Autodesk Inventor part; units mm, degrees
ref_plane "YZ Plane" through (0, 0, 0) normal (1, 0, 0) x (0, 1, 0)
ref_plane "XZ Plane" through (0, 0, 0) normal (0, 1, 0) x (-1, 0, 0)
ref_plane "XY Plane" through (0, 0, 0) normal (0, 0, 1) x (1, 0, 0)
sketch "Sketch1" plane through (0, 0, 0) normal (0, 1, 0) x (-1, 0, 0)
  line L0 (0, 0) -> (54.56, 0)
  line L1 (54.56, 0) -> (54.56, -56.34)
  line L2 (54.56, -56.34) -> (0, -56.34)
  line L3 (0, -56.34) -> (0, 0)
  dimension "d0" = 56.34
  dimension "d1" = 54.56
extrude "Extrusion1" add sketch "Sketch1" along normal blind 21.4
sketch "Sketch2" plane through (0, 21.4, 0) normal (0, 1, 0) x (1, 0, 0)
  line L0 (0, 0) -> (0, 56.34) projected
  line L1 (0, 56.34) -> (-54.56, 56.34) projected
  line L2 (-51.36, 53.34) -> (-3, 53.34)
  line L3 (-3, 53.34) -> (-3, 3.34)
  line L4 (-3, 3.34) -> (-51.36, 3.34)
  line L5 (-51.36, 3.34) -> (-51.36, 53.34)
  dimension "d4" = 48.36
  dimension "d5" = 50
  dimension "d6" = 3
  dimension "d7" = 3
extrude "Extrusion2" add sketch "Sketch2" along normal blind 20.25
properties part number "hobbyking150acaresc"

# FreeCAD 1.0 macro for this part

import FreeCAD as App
import Part
import Sketcher

V = App.Vector


def add_polygon(sketch, points):
    """Adds a closed chain of lines whose ends are joined by coincident constraints."""
    first, n = sketch.GeometryCount, len(points)
    for a, b in zip(points, points[1:] + points[:1]):
        sketch.addGeometry(Part.LineSegment(App.Vector(*a, 0), App.Vector(*b, 0)), False)
    for i in range(n):
        sketch.addConstraint(Sketcher.Constraint("Coincident", first + i, 2, first + (i + 1) % n, 1))

doc = App.newDocument("Part")
params = doc.addObject("Spreadsheet::Sheet", "Params")
for row, (alias, value) in enumerate([
    ("sketch1_width", "54.56 mm"),
    ("sketch1_height", "56.34 mm"),
    ("pad1_length", "21.4 mm"),
    ("sketch2_height", "50 mm"),
    ("sketch2_width", "48.36 mm"),
    ("pad2_length", "20.25 mm"),
], start=1):
    params.set(f"A{row}", alias)
    params.set(f"B{row}", "=" + value)
    params.setAlias(f"B{row}", alias)

body = doc.addObject("PartDesign::Body", "Body")

# Sketch on XZ plane
sketch1 = doc.addObject("Sketcher::SketchObject", "Sketch")
body.addObject(sketch1)
sketch1.AttachmentSupport = (doc.XZ_Plane, [""])
sketch1.MapMode = "FlatFace"
add_polygon(sketch1, [(-55, 0), (0, 0), (0, -56), (-55, -56)])  # lines 0-3
sketch1.addConstraint(Sketcher.Constraint("Horizontal", 0))
sketch1.addConstraint(Sketcher.Constraint("Vertical", 1))
sketch1.addConstraint(Sketcher.Constraint("Horizontal", 2))
sketch1.addConstraint(Sketcher.Constraint("Vertical", 3))
sketch1.addConstraint(Sketcher.Constraint("Coincident", 0, 2, -1, 1))
sketch1.addConstraint(Sketcher.Constraint("DistanceX", 0, 1, 0, 2, 54.56))
sketch1.addConstraint(Sketcher.Constraint("DistanceY", 1, 2, 1, 1, 56.34))
sketch1.setExpression("Constraints[9]", "Params.sketch1_width")
sketch1.setExpression("Constraints[10]", "Params.sketch1_height")
pad1 = doc.addObject("PartDesign::Pad", "Pad")
body.addObject(pad1)
pad1.Profile = sketch1
pad1.setExpression("Length", "Params.pad1_length")
pad1.Reversed = True

# Sketch on XZ plane
sketch2 = doc.addObject("Sketcher::SketchObject", "Sketch001")
body.addObject(sketch2)
sketch2.AttachmentSupport = (doc.XZ_Plane, [""])
sketch2.MapMode = "FlatFace"
sketch2.AttachmentOffset = App.Placement(V(0, 0, -21.4), App.Rotation())
add_polygon(sketch2, [(-3, -53), (-51, -53), (-51, -3), (-3, -3)])  # lines 0-3
sketch2.addConstraint(Sketcher.Constraint("Horizontal", 0))
sketch2.addConstraint(Sketcher.Constraint("Vertical", 1))
sketch2.addConstraint(Sketcher.Constraint("Horizontal", 2))
sketch2.addConstraint(Sketcher.Constraint("Vertical", 3))
sketch2.addConstraint(Sketcher.Constraint("DistanceY", 1, 1, 1, 2, 50.0))
sketch2.addConstraint(Sketcher.Constraint("DistanceX", 2, 2, -1, 1, 3.0))
sketch2.addConstraint(Sketcher.Constraint("DistanceX", 0, 2, 0, 1, 48.36))
sketch2.addConstraint(Sketcher.Constraint("DistanceY", 0, 2, -1, 1, 53.34))
sketch2.setExpression("Constraints[8]", "Params.sketch2_height")
sketch2.setExpression("Constraints[10]", "Params.sketch2_width")
pad2 = doc.addObject("PartDesign::Pad", "Pad001")
body.addObject(pad2)
pad2.Profile = sketch2
pad2.setExpression("Length", "Params.pad2_length")
pad2.Reversed = True

doc.recompute()
